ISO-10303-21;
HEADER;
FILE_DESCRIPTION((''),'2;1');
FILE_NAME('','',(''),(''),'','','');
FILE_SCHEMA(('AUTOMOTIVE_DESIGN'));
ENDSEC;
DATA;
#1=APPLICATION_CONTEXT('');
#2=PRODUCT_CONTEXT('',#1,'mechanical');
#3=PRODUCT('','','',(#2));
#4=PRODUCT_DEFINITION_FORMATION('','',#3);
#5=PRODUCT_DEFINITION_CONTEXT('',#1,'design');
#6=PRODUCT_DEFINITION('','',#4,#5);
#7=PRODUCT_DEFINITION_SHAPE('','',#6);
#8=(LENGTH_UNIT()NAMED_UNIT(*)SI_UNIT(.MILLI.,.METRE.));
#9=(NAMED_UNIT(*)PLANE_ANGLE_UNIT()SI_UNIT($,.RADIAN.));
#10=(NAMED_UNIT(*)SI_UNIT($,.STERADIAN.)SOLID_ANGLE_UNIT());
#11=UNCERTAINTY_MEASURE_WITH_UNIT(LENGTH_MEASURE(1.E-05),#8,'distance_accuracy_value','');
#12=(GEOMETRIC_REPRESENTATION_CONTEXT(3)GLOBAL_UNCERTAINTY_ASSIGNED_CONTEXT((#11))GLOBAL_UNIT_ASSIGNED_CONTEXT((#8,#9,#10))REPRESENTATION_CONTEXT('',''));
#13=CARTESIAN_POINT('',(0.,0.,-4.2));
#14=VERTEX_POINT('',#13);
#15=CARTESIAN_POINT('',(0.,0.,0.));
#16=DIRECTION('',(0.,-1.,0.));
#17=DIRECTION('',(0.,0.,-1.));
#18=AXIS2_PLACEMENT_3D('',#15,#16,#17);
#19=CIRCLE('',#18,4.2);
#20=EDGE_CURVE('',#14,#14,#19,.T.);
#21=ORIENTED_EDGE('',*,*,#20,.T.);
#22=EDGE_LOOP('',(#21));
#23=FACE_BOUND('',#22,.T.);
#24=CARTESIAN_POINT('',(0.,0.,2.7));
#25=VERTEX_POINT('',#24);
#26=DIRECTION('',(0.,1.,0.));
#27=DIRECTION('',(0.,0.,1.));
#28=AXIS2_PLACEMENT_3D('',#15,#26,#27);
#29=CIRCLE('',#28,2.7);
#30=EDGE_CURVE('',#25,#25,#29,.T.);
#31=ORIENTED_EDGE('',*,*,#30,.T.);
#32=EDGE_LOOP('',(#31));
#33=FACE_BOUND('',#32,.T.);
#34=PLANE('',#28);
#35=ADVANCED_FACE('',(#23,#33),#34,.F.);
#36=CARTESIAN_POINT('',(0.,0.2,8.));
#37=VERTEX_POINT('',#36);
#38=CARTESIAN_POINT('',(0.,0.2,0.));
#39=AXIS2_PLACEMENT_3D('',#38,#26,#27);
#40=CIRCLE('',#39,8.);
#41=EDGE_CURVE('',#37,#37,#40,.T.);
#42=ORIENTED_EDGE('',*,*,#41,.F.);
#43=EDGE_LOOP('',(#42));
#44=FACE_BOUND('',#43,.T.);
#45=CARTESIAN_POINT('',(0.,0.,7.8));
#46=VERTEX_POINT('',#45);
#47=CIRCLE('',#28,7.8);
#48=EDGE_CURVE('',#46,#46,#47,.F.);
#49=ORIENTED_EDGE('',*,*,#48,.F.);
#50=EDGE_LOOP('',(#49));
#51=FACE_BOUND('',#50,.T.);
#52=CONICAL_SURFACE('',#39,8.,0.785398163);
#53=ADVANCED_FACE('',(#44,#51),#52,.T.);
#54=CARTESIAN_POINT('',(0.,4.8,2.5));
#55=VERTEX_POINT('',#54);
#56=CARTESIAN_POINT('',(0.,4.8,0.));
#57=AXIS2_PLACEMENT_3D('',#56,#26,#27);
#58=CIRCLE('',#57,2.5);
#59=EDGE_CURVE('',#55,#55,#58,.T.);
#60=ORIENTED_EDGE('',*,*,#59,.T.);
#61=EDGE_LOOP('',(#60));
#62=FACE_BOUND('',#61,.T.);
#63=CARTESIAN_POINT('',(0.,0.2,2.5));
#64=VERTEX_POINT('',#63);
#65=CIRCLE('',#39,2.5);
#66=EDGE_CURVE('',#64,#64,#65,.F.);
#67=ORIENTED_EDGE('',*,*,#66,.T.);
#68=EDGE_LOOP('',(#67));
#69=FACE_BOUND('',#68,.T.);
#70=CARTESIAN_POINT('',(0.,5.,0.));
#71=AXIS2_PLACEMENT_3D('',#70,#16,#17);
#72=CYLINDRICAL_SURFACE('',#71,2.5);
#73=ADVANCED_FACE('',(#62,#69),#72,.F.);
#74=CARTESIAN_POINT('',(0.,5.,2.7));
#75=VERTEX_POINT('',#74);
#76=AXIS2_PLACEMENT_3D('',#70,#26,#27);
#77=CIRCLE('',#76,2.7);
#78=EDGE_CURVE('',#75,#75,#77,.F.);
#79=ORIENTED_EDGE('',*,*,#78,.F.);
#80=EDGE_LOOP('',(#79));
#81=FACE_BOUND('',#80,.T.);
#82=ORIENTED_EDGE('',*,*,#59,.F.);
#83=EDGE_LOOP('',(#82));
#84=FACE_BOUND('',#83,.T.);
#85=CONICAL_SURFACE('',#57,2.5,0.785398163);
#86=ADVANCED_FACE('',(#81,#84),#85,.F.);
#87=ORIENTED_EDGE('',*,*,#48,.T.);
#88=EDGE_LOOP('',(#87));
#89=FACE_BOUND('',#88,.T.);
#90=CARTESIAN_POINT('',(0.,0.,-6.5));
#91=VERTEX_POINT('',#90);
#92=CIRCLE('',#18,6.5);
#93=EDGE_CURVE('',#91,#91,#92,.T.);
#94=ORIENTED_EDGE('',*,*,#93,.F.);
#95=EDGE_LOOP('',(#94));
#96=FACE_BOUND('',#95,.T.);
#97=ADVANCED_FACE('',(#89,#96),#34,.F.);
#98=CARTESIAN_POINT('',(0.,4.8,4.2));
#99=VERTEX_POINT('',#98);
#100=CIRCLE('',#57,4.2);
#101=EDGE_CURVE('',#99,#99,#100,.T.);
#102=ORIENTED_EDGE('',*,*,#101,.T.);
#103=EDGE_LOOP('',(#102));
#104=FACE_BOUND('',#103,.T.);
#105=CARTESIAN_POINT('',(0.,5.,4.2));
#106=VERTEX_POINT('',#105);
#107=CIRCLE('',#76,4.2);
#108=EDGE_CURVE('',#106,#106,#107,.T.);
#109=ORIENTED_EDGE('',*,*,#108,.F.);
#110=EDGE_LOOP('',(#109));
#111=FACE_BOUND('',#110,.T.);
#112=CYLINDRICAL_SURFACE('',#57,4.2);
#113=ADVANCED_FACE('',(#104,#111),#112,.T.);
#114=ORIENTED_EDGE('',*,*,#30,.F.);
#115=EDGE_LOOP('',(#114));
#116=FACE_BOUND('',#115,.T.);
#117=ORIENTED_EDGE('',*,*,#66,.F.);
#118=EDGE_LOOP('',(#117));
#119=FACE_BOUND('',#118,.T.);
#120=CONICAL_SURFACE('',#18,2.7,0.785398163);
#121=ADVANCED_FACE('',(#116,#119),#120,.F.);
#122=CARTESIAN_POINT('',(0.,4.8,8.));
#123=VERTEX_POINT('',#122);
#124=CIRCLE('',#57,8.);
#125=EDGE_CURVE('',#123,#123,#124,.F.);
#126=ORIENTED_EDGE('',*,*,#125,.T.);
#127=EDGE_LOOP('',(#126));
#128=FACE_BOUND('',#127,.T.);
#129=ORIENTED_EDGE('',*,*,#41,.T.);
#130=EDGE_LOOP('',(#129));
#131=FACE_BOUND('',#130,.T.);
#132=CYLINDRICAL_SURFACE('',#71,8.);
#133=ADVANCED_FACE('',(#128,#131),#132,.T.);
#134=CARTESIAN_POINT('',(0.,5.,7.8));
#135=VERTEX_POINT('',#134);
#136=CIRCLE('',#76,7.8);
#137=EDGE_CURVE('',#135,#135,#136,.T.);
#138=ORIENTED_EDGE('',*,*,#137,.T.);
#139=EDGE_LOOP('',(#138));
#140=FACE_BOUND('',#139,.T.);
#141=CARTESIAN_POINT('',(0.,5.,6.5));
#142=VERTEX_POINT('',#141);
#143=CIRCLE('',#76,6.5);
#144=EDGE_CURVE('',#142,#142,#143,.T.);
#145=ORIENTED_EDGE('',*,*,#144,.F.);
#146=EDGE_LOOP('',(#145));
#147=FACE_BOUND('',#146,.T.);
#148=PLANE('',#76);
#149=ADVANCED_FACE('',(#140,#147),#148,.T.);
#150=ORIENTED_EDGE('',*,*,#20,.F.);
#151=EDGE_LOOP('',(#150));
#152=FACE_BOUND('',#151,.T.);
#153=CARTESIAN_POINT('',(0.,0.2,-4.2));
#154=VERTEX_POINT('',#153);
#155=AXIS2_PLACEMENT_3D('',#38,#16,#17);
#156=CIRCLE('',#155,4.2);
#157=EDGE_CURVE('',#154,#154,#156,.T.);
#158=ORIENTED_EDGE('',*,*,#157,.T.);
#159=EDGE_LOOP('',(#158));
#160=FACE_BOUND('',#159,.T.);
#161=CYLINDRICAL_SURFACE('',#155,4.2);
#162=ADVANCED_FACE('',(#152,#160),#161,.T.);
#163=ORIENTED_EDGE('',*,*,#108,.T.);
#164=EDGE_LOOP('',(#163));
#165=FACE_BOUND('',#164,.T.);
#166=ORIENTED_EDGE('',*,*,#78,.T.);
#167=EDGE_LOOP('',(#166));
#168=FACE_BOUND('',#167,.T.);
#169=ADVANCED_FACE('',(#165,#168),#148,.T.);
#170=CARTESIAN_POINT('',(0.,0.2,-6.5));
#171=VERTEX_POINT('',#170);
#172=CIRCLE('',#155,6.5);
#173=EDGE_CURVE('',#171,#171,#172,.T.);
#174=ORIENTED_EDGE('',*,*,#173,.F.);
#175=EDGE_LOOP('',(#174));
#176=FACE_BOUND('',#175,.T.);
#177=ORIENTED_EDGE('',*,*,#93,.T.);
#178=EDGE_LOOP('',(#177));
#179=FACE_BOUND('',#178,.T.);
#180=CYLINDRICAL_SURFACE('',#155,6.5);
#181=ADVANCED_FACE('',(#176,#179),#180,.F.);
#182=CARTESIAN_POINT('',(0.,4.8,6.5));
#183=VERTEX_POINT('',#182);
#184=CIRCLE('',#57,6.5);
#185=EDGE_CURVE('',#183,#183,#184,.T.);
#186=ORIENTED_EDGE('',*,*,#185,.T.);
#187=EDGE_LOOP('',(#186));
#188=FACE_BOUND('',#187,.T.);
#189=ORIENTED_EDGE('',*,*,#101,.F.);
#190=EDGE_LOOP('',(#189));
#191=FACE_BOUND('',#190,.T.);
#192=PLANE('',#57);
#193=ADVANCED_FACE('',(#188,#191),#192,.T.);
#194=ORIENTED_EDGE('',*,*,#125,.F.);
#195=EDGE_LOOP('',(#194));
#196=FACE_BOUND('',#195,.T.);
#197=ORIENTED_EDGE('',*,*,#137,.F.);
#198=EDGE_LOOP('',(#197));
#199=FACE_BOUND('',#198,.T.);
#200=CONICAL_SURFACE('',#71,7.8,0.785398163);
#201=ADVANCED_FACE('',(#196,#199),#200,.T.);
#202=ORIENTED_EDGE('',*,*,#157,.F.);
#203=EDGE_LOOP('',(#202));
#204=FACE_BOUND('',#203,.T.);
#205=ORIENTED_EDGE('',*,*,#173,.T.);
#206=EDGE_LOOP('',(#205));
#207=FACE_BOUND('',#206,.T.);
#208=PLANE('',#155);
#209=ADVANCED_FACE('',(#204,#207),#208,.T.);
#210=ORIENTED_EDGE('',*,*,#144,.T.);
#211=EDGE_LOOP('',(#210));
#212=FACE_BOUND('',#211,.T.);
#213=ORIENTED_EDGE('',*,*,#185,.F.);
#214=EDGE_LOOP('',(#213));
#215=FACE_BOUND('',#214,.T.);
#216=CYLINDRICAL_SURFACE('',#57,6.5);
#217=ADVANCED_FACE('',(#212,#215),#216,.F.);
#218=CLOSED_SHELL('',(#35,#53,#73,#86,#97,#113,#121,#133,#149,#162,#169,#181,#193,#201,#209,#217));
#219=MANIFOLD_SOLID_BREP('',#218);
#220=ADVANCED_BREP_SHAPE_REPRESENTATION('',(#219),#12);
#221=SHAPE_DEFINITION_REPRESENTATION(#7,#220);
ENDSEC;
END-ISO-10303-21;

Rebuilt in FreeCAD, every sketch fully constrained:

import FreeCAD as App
import Part
import Sketcher


def edges_at(feature, points):
    """Names of the edges that pass closest to the given points."""
    edges = feature.Shape.Edges
    near = lambda p: min(range(len(edges)), key=lambda i: edges[i].distToShape(Part.Vertex(*p))[0])
    return sorted({f"Edge{near(p) + 1}" for p in points})

doc = App.newDocument("Part")
body = doc.addObject("PartDesign::Body", "Body")

# Sketch on XZ plane
sketch1 = doc.addObject("Sketcher::SketchObject", "Sketch")
body.addObject(sketch1)
sketch1.AttachmentSupport = (doc.XZ_Plane, [""])
sketch1.MapMode = "FlatFace"
sketch1.addGeometry(Part.Circle(App.Vector(0, 0, 0), App.Vector(0, 0, 1), 8), False)
sketch1.addGeometry(Part.Circle(App.Vector(0, 0, 0), App.Vector(0, 0, 1), 2.5), False)
sketch1.addConstraint(Sketcher.Constraint("Coincident", 0, 3, -1, 1))
sketch1.addConstraint(Sketcher.Constraint("Coincident", 1, 3, -1, 1))
sketch1.addConstraint(Sketcher.Constraint("Diameter", 0, 16.0))
sketch1.addConstraint(Sketcher.Constraint("Diameter", 1, 5.0))
pad1 = doc.addObject("PartDesign::Pad", "Pad")
body.addObject(pad1)
pad1.Profile = sketch1
pad1.Length = 5
pad1.Reversed = True

# Sketch on XZ plane
sketch2 = doc.addObject("Sketcher::SketchObject", "Sketch001")
body.addObject(sketch2)
sketch2.AttachmentSupport = (doc.XZ_Plane, [""])
sketch2.MapMode = "FlatFace"
sketch2.AttachmentOffset = App.Placement(App.Vector(0, 0, -5), App.Rotation())
sketch2.addGeometry(Part.Circle(App.Vector(0, 0, 0), App.Vector(0, 0, 1), 6.5), False)
sketch2.addGeometry(Part.Circle(App.Vector(0, 0, 0), App.Vector(0, 0, 1), 4.2), False)
sketch2.addConstraint(Sketcher.Constraint("Coincident", 0, 3, -1, 1))
sketch2.addConstraint(Sketcher.Constraint("Coincident", 1, 3, -1, 1))
sketch2.addConstraint(Sketcher.Constraint("Diameter", 0, 13.0))
sketch2.addConstraint(Sketcher.Constraint("Diameter", 1, 8.4))
pocket1 = doc.addObject("PartDesign::Pocket", "Pocket")
body.addObject(pocket1)
pocket1.Profile = sketch2
pocket1.Length = 0.2
pocket1.Reversed = True

# Sketch on XZ plane
sketch3 = doc.addObject("Sketcher::SketchObject", "Sketch002")
body.addObject(sketch3)
sketch3.AttachmentSupport = (doc.XZ_Plane, [""])
sketch3.MapMode = "FlatFace"
sketch3.addGeometry(Part.Circle(App.Vector(0, 0, 0), App.Vector(0, 0, 1), 6.5), False)
sketch3.addGeometry(Part.Circle(App.Vector(0, 0, 0), App.Vector(0, 0, 1), 4.2), False)
sketch3.addConstraint(Sketcher.Constraint("Coincident", 0, 3, -1, 1))
sketch3.addConstraint(Sketcher.Constraint("Coincident", 1, 3, -1, 1))
sketch3.addConstraint(Sketcher.Constraint("Diameter", 0, 13.0))
sketch3.addConstraint(Sketcher.Constraint("Diameter", 1, 8.4))
pocket2 = doc.addObject("PartDesign::Pocket", "Pocket001")
body.addObject(pocket2)
pocket2.Profile = sketch3
pocket2.Length = 0.2
doc.recompute()

chamfer = doc.addObject("PartDesign::Chamfer", "Chamfer")
body.addObject(chamfer)
chamfer.Base = (pocket2, edges_at(pocket2, [
    (-8, 0, 0),
    (-8, 5, 0),
    (-2.5, 0, 0),
    (-2.5, 5, 0),
]))
chamfer.Size = 0.2

doc.recompute()
